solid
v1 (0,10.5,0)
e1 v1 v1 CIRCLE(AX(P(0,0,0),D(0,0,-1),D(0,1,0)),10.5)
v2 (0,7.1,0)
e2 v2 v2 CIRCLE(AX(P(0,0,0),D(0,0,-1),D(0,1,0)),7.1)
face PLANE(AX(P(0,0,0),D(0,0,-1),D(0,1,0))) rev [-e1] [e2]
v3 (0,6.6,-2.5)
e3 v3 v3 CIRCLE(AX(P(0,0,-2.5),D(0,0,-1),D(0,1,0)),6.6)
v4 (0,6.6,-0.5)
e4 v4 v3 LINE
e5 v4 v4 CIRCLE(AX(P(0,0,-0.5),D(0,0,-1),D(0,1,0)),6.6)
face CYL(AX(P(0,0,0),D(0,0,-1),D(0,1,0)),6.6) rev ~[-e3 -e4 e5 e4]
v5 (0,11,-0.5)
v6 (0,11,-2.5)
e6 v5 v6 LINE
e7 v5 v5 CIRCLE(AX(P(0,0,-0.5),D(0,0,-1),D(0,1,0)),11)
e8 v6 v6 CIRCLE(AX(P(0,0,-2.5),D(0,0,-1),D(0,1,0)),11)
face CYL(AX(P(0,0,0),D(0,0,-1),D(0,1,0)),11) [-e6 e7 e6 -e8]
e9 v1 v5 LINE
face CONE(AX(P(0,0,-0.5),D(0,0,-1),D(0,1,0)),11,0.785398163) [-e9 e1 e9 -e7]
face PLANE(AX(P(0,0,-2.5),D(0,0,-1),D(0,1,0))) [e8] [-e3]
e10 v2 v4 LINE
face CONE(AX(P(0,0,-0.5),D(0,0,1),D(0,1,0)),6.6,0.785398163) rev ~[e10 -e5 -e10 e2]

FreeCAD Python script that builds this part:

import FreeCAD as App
import Part
import Sketcher
Q = App.Units.Quantity


def edges_at(feature, points):
    """Names of the edges that pass closest to the given points."""
    edges = feature.Shape.Edges
    near = lambda p: min(range(len(edges)), key=lambda i: edges[i].distToShape(Part.Vertex(*p))[0])
    return sorted({f"Edge{near(p) + 1}" for p in points})


def add_polygon(sketch, points):
    """Adds a closed chain of lines whose ends are joined by coincident constraints."""
    first, n = sketch.GeometryCount, len(points)
    for a, b in zip(points, points[1:] + points[:1]):
        sketch.addGeometry(Part.LineSegment(App.Vector(*a, 0), App.Vector(*b, 0)), False)
    for i in range(n):
        sketch.addConstraint(Sketcher.Constraint("Coincident", first + i, 2, first + (i + 1) % n, 1))

doc = App.newDocument("Part")
params = doc.addObject("Spreadsheet::Sheet", "Params")
for row, (alias, value) in enumerate([
    ("sketch1_height", "2.5 mm"),
    ("sketch1_width", "4.4 mm"),
    ("revolution_angle", "360 deg"),
    ("chamfer_size", "0.5 mm"),
], start=1):
    params.set(f"A{row}", alias)
    params.set(f"B{row}", "=" + value)
    params.setAlias(f"B{row}", alias)

body = doc.addObject("PartDesign::Body", "Body")

# Sketch on YZ plane
sketch1 = body.newObject("Sketcher::SketchObject", "Sketch")
sketch1.AttachmentSupport = (doc.getObject("YZ_Plane"), [""])
sketch1.MapMode = "FlatFace"
add_polygon(sketch1, [(11, 0), (6.6, 0), (6.6, -2.5), (11, -2.5)])  # lines 0-3
sketch1.addConstraint([
    Sketcher.Constraint("Horizontal", 0),
    Sketcher.Constraint("Vertical", 1),
    Sketcher.Constraint("Horizontal", 2),
    Sketcher.Constraint("Vertical", 3),
    Sketcher.Constraint("PointOnObject", 0, 2, -1),
    Sketcher.Constraint("DistanceY", 1, 2, 1, 1, Q("2.5 mm")),
    Sketcher.Constraint("DistanceX", 0, 2, 0, 1, Q("4.4 mm")),
    Sketcher.Constraint("DistanceX", -1, 1, 2, 2, Q("11 mm")),
])
sketch1.setExpression("Constraints[9]", "Params.sketch1_height")
sketch1.setExpression("Constraints[10]", "Params.sketch1_width")
revolution = body.newObject("PartDesign::Revolution", "Revolution")
revolution.Profile = sketch1
revolution.ReferenceAxis = (sketch1, ["V_Axis"])
revolution.setExpression("Angle", "Params.revolution_angle")
doc.recompute()

chamfer = body.newObject("PartDesign::Chamfer", "Chamfer")
chamfer.Base = (revolution, edges_at(revolution, [(0, -11, 0), (0, -6.6, 0)]))
chamfer.setExpression("Size", "Params.chamfer_size")

doc.recompute()
